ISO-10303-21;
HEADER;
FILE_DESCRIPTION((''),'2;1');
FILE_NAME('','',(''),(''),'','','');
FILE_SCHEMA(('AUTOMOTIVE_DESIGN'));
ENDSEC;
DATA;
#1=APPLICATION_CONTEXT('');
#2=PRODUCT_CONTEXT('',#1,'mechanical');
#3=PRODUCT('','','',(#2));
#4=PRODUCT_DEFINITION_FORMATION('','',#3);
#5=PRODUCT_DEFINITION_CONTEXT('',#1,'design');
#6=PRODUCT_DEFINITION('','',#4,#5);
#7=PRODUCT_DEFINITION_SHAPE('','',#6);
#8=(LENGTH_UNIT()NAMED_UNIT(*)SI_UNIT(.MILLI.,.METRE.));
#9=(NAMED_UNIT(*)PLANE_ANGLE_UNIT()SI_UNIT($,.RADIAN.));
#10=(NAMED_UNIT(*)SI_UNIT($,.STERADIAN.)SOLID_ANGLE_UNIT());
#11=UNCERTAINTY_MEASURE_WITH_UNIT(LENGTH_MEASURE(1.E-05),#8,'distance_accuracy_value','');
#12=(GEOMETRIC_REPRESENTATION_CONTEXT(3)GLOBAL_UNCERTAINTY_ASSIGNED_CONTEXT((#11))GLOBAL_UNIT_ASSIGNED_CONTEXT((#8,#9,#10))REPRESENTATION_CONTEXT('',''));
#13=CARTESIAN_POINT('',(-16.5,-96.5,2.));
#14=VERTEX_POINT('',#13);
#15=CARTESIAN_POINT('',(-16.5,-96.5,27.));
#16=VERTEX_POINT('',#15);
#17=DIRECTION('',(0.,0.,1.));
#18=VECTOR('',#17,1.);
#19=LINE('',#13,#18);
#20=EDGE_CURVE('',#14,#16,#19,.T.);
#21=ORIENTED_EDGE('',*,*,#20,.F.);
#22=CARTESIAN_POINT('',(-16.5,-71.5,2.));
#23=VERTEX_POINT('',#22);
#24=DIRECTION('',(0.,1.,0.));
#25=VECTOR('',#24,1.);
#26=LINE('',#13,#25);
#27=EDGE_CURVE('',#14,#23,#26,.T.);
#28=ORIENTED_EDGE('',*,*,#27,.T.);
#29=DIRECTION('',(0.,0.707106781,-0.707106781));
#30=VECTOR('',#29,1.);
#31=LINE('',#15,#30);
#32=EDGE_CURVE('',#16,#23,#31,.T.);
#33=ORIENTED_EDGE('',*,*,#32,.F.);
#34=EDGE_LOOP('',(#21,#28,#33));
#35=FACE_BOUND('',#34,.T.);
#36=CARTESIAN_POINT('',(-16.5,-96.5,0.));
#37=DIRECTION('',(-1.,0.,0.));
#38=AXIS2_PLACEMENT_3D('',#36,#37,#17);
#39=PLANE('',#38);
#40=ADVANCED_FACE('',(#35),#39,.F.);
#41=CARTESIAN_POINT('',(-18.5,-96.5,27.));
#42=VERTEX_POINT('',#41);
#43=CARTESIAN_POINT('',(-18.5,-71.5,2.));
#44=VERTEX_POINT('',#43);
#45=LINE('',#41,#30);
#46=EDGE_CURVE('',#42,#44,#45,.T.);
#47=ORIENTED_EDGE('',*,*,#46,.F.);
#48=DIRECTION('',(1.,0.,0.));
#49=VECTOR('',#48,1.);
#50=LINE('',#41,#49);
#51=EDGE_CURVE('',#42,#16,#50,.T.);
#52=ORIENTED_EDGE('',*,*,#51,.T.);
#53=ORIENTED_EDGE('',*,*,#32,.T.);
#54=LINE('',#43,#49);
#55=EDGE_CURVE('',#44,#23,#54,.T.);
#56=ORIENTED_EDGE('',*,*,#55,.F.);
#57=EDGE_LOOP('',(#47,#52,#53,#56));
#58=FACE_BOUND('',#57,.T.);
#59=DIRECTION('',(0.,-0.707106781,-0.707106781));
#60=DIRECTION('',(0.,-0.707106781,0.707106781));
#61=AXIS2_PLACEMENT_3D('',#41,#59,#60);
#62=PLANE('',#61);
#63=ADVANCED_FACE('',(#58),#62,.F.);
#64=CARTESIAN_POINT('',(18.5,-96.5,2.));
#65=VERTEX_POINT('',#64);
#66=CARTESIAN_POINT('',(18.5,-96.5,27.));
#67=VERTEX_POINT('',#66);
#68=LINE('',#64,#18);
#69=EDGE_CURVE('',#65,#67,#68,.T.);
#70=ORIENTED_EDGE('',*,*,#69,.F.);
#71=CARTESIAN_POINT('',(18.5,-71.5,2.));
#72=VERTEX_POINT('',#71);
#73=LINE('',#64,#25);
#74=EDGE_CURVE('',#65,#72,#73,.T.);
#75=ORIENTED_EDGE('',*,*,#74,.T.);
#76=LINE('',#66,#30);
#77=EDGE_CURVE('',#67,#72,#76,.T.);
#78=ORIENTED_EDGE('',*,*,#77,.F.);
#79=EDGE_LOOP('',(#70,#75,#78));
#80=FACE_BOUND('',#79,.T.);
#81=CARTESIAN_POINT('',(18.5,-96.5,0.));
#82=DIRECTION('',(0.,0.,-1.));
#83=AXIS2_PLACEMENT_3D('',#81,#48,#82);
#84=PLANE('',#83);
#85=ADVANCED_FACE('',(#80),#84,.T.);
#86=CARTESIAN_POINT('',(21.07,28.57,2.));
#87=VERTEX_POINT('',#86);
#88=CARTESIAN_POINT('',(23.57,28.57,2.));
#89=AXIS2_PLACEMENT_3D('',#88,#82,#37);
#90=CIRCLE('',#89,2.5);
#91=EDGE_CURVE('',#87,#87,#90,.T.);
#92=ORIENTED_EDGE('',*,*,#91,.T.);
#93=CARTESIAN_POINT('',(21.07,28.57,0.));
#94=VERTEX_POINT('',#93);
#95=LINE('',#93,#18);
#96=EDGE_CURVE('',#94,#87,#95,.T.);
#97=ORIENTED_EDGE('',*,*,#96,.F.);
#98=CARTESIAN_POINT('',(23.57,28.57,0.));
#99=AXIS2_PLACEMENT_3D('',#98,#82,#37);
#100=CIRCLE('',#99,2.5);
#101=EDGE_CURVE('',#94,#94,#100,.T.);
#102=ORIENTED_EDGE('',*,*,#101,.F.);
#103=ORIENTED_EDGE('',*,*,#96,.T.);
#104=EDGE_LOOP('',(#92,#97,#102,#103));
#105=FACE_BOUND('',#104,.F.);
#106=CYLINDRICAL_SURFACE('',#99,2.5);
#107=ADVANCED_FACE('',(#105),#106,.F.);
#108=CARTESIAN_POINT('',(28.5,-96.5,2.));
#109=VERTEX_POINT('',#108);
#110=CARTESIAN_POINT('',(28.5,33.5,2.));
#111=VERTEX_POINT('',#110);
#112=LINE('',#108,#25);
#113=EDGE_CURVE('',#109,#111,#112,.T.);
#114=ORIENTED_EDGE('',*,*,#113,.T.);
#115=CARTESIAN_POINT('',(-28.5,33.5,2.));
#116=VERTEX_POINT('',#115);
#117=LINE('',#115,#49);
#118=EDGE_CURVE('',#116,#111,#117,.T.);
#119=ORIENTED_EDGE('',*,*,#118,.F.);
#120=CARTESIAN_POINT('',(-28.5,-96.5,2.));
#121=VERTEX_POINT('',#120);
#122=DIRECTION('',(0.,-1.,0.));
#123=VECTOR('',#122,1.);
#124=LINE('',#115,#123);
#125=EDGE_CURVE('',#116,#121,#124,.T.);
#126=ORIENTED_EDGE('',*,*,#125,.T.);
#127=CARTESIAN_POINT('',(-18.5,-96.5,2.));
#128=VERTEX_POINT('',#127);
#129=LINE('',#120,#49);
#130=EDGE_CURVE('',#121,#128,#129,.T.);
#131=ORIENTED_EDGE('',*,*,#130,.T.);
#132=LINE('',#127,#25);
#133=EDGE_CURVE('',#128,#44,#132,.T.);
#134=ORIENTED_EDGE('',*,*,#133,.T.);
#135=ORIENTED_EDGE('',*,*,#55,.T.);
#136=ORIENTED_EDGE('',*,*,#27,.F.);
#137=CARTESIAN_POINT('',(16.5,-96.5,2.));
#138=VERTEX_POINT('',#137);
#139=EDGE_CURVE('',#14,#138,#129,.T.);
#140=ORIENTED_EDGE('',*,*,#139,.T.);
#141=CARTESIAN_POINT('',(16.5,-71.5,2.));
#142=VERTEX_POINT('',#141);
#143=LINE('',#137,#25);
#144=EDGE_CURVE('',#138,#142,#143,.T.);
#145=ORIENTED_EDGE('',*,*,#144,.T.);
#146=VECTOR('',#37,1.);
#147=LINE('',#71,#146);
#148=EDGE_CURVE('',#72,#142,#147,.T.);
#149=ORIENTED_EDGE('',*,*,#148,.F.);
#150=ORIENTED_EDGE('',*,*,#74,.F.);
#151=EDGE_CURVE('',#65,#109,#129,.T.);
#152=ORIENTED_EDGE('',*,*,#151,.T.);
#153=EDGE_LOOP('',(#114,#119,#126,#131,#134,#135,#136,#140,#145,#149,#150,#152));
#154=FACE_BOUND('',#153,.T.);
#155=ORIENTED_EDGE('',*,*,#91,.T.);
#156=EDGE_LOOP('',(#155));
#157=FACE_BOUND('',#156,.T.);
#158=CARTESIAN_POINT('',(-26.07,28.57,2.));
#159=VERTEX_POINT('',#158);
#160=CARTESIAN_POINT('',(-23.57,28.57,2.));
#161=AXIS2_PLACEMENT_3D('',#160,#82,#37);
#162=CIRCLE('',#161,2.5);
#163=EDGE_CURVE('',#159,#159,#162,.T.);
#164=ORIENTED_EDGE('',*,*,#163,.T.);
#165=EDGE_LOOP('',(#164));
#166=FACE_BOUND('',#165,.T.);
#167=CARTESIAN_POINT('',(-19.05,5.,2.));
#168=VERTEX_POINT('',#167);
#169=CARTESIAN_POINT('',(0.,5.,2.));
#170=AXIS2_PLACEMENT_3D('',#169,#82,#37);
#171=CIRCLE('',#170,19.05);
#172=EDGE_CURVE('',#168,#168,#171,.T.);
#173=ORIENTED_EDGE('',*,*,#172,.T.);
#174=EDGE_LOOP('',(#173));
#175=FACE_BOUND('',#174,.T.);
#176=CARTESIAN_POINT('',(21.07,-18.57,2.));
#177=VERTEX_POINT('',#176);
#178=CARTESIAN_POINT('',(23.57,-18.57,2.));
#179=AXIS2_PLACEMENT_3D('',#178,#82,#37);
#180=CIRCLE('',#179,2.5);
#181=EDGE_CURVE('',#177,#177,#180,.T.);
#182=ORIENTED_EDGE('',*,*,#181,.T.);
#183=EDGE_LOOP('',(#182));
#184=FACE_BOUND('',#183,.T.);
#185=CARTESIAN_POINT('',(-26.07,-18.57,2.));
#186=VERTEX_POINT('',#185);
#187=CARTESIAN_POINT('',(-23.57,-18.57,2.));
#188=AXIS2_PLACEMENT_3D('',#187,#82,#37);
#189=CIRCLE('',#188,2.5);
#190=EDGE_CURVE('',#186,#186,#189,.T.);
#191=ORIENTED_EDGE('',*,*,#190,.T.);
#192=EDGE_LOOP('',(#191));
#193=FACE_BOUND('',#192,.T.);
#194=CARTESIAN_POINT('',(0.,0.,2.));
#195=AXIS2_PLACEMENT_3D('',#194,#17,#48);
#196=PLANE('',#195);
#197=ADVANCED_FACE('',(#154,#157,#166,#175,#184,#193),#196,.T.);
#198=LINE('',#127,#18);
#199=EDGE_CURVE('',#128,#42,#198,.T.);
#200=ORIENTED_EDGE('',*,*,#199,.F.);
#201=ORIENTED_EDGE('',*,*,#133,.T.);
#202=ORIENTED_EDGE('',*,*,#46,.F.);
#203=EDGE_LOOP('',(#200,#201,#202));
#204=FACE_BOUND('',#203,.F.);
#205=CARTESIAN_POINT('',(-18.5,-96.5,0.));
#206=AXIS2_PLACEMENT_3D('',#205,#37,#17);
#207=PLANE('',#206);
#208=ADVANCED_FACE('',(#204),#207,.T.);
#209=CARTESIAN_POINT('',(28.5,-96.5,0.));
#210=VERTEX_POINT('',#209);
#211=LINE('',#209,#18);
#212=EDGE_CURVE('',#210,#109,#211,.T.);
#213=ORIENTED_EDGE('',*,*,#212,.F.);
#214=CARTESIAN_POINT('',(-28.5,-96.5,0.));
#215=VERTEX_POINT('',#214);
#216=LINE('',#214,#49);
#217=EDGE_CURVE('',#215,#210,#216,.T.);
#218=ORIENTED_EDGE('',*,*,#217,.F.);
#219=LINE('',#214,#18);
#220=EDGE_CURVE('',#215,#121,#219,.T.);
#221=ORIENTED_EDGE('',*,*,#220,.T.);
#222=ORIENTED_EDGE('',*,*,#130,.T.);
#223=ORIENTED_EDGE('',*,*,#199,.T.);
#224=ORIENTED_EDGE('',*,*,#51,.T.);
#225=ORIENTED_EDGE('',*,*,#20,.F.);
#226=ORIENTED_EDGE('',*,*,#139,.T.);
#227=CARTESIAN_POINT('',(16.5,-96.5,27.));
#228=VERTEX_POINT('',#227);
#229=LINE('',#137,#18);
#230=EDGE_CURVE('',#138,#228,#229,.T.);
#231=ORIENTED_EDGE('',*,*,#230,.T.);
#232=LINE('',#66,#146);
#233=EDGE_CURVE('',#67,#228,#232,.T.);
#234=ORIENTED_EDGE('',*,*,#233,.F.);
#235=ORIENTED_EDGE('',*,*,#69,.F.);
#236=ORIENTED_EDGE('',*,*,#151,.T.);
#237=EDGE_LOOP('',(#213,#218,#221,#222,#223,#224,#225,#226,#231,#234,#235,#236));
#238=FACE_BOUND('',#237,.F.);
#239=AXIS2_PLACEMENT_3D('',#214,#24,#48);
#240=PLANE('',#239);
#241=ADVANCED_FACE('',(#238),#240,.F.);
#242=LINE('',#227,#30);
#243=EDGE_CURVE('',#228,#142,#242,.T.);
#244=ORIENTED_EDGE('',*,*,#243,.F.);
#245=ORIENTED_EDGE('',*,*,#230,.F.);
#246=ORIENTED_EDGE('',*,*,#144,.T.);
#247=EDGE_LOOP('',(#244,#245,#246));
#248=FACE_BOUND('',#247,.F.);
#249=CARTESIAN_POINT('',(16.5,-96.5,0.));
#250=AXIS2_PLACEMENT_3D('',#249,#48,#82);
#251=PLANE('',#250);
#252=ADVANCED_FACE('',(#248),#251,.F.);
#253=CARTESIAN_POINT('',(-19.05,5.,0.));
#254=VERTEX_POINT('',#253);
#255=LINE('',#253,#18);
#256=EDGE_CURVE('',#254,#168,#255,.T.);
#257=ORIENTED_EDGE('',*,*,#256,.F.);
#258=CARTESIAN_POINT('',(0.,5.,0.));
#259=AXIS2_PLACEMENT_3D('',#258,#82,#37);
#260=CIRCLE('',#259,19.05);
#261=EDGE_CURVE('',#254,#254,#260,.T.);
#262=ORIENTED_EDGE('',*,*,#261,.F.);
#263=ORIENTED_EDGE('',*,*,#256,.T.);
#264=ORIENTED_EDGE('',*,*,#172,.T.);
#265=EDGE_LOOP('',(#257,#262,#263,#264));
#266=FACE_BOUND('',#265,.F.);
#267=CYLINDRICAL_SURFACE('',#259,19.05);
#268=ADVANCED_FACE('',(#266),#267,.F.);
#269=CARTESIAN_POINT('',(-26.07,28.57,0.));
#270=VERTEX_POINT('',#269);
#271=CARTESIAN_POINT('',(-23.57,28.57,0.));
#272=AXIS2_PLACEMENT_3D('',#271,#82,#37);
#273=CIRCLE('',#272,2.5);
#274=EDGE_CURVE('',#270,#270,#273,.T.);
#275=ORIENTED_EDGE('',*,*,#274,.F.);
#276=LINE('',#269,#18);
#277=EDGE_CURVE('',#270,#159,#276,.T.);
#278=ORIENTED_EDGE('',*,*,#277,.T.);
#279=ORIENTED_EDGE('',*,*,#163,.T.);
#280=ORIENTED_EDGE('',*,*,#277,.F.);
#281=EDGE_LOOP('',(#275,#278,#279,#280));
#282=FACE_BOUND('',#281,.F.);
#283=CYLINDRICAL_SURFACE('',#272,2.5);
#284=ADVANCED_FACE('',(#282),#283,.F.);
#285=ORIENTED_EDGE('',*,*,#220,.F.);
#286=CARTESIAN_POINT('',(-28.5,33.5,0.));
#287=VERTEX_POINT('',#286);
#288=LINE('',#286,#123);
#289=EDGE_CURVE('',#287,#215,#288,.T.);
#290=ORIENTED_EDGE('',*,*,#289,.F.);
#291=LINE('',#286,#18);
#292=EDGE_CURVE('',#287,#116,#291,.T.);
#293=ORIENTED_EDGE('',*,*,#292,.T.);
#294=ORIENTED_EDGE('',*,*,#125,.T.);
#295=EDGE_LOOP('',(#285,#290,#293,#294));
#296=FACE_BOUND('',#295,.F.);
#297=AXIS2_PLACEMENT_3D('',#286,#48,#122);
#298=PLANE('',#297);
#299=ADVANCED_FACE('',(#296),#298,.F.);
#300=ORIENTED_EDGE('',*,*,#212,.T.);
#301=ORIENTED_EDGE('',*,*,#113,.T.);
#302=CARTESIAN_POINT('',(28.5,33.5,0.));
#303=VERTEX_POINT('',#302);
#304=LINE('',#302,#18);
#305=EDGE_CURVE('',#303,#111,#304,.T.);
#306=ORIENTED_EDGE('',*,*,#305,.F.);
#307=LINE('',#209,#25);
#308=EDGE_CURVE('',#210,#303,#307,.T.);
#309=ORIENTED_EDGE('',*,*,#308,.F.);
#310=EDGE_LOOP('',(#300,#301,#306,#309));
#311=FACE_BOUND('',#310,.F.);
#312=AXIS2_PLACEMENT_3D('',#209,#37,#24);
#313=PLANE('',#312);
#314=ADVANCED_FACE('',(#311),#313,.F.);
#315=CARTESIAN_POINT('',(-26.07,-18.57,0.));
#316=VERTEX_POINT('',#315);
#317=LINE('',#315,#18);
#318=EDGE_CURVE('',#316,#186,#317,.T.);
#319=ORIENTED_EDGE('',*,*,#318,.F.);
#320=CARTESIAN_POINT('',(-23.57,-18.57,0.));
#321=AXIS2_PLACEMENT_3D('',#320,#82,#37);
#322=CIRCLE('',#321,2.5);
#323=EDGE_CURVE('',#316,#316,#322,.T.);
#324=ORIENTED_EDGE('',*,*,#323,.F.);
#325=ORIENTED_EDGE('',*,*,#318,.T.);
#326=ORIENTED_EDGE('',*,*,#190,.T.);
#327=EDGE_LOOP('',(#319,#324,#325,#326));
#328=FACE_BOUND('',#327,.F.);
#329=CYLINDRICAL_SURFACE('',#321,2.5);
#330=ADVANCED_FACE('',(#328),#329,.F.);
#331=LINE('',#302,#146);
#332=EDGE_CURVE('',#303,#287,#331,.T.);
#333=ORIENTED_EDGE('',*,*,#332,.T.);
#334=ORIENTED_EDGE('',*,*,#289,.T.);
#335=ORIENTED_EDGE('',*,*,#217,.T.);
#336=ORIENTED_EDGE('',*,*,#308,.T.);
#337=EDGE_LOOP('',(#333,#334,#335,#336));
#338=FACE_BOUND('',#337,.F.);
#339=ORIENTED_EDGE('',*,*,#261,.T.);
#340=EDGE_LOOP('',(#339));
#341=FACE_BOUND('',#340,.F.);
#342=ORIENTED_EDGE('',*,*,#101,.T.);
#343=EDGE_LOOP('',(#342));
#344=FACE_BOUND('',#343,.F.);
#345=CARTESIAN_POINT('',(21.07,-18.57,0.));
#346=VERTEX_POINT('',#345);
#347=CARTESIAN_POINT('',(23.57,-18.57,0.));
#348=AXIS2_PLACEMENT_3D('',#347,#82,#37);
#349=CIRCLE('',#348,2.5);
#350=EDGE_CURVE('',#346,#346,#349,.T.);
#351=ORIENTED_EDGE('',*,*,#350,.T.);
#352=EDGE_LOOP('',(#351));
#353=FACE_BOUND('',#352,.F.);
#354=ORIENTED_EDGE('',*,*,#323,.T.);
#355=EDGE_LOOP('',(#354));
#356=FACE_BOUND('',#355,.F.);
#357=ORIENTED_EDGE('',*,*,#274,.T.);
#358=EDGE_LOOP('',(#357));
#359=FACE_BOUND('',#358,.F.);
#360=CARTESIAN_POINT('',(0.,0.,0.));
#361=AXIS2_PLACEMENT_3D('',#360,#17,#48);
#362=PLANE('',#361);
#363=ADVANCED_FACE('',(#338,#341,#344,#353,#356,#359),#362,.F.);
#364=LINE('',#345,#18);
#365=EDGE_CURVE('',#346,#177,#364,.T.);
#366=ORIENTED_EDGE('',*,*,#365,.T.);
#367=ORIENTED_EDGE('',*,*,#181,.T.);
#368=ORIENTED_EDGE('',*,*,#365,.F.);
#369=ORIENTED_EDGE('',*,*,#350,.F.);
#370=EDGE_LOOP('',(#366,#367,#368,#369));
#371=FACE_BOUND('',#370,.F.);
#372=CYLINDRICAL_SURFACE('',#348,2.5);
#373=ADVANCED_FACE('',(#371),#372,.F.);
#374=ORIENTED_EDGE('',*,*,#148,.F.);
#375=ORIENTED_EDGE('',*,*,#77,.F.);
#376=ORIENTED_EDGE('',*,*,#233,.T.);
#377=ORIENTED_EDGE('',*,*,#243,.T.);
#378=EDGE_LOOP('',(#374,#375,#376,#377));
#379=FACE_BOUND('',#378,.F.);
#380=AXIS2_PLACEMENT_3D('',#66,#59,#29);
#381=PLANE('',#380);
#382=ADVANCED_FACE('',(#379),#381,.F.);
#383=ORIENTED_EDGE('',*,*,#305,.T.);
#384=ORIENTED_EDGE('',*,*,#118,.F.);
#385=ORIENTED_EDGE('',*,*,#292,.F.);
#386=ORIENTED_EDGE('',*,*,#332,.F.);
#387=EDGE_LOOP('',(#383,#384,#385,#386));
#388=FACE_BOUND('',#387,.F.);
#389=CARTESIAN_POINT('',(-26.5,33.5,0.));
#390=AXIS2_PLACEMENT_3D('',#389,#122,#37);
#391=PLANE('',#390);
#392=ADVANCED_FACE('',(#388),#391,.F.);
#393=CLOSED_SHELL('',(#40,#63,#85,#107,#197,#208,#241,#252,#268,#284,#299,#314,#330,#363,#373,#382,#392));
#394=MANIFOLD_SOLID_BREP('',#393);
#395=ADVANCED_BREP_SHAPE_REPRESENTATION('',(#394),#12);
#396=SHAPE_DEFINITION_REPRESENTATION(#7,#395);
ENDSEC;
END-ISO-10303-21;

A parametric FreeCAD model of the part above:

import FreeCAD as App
import Part
import Sketcher
from FreeCAD import Vector


def add_polygon(sketch, points):
    """Adds a closed chain of lines whose ends are joined by coincident constraints."""
    first, n = sketch.GeometryCount, len(points)
    for a, b in zip(points, points[1:] + points[:1]):
        sketch.addGeometry(Part.LineSegment(App.Vector(*a, 0), App.Vector(*b, 0)), False)
    for i in range(n):
        sketch.addConstraint(Sketcher.Constraint("Coincident", first + i, 2, first + (i + 1) % n, 1))

doc = App.newDocument("Part")
body = doc.addObject("PartDesign::Body", "Body")

sketch1 = body.newObject("Sketcher::SketchObject", "Sketch")
sketch1.AttachmentSupport = (doc.getObject("XY_Plane"), [""])
sketch1.MapMode = "FlatFace"
add_polygon(sketch1, [(-28, 34), (-28, -96), (28, -96), (28, 34)])
sketch1.addConstraint([
    Sketcher.Constraint("Vertical", 0),
    Sketcher.Constraint("Horizontal", 1),
    Sketcher.Constraint("Vertical", 2),
    Sketcher.Constraint("Horizontal", 3),
    Sketcher.Constraint("DistanceX", 1, 1, 1, 2, 57.0),
    Sketcher.Constraint("DistanceY", 0, 2, 0, 1, 130.0),
    Sketcher.Constraint("DistanceX", 0, 2, -1, 1, 28.5),
    Sketcher.Constraint("DistanceY", 0, 2, -1, 1, 96.5),
])
pad1 = body.newObject("PartDesign::Pad", "Pad")
pad1.Profile = sketch1
pad1.Length = 2

sketch2 = body.newObject("Sketcher::SketchObject", "Sketch001")
sketch2.AttachmentSupport = (doc.getObject("XY_Plane"), [""])
sketch2.MapMode = "FlatFace"
sketch2.addGeometry(Part.Circle(Vector(0, 5, 0), Vector(0, 0, 1), 19), False)
sketch2.addConstraint([
    Sketcher.Constraint("PointOnObject", 0, 3, -2),
    Sketcher.Constraint("Diameter", 0, 38.1),
    Sketcher.Constraint("DistanceY", -1, 1, 0, 3, 5.0),
])
pocket1 = body.newObject("PartDesign::Pocket", "Pocket")
pocket1.Profile = sketch2
pocket1.Length = 10
pocket1.Reversed = True

sketch3 = body.newObject("Sketcher::SketchObject", "Sketch002")
sketch3.AttachmentSupport = (doc.getObject("XY_Plane"), [""])
sketch3.MapMode = "FlatFace"
sketch3.addGeometry([
    Part.Circle(Vector(23.6, -18.6, 0), Vector(0, 0, 1), 2.5),
    Part.Circle(Vector(-23.6, -18.6, 0), Vector(0, 0, 1), 2.5),
    Part.Circle(Vector(-23.6, 28.6, 0), Vector(0, 0, 1), 2.5),
    Part.Circle(Vector(23.6, 28.6, 0), Vector(0, 0, 1), 2.5),
], False)
sketch3.addConstraint([
    Sketcher.Constraint("Equal", 0, 1),
    Sketcher.Constraint("Equal", 1, 2),
    Sketcher.Constraint("Equal", 2, 3),
    Sketcher.Constraint("Symmetric", 0, 3, 1, 3, -2),
    Sketcher.Constraint("Symmetric", 2, 3, 3, 3, -2),
    Sketcher.Constraint("Vertical", 1, 3, 2, 3),
    Sketcher.Constraint("Diameter", 0, 5.0),
    Sketcher.Constraint("DistanceX", -1, 1, 0, 3, 23.57),
    Sketcher.Constraint("DistanceY", 0, 3, -1, 1, 18.57),
    Sketcher.Constraint("DistanceY", -1, 1, 2, 3, 28.57),
])
pocket2 = body.newObject("PartDesign::Pocket", "Pocket001")
pocket2.Profile = sketch3
pocket2.Length = 10
pocket2.Reversed = True

sketch4 = body.newObject("Sketcher::SketchObject", "Sketch003")
sketch4.AttachmentSupport = (doc.getObject("YZ_Plane"), [""])
sketch4.MapMode = "FlatFace"
sketch4.AttachmentOffset = App.Placement(Vector(0, 0, 18.5), App.Rotation())
add_polygon(sketch4, [(-96, 27), (-96, 2), (-72, 2)])
sketch4.addConstraint([
    Sketcher.Constraint("Vertical", 0),
    Sketcher.Constraint("Horizontal", 1),
    Sketcher.Constraint("Equal", 1, 0),
    Sketcher.Constraint("DistanceX", 1, 1, 1, 2, 25.0),
    Sketcher.Constraint("DistanceY", -1, 1, 0, 2, 2.0),
    Sketcher.Constraint("DistanceX", 0, 2, -1, 1, 96.5),
])
pad2 = body.newObject("PartDesign::Pad", "Pad001")
pad2.Profile = sketch4
pad2.Length = 2
pad2.Reversed = True
doc.recompute()

mirrored = body.newObject("PartDesign::Mirrored", "Mirrored")
mirrored.Originals = [pad2]
mirrored.MirrorPlane = (doc.getObject("YZ_Plane"), [""])
body.Tip = mirrored

doc.recompute()
